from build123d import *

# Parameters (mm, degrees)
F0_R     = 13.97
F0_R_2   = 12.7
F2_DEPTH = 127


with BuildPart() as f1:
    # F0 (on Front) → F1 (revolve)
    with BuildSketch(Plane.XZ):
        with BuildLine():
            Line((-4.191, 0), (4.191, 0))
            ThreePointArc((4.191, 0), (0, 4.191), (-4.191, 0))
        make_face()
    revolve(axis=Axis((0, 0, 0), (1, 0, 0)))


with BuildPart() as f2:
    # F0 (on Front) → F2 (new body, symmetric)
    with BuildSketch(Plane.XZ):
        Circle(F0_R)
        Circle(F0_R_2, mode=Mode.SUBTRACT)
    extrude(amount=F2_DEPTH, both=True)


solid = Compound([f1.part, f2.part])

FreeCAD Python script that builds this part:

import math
import FreeCAD as App
import Part
import Sketcher

V = App.Vector
Q = App.Units.Quantity

doc = App.newDocument("Part")
body = doc.addObject("PartDesign::Body", "Body")

sketch1 = body.newObject("Sketcher::SketchObject", "Sketch")
sketch1.AttachmentSupport = (doc.getObject("XZ_Plane"), [""])
sketch1.MapMode = "FlatFace"
sketch1.addGeometry(Part.LineSegment(V(-4.2, 0, 0), V(4.2, 0, 0)), False)
sketch1.addGeometry(Part.ArcOfCircle(Part.Circle(V(0, 0, 0), V(0, 0, 1), 4.2), math.radians(0), math.radians(180)), False)
sketch1.addConstraint(Sketcher.Constraint("Coincident", 0, 1, 1, 2))
sketch1.addConstraint(Sketcher.Constraint("Coincident", 1, 1, 0, 2))
sketch1.addConstraint(Sketcher.Constraint("Horizontal", 0))
sketch1.addConstraint(Sketcher.Constraint("Coincident", 1, 3, -1, 1))
sketch1.addConstraint(Sketcher.Constraint("PointOnObject", 0, 1, -1))
sketch1.addConstraint(Sketcher.Constraint("Radius", 1, Q("0.165 in")))
revolution = body.newObject("PartDesign::Revolution", "Revolution")
revolution.Profile = sketch1
revolution.ReferenceAxis = (sketch1, ["H_Axis"])
revolution.Angle = 360
body2 = doc.addObject("PartDesign::Body", "Body001")

sketch2 = body2.newObject("Sketcher::SketchObject", "Sketch001")
sketch2.AttachmentSupport = (doc.getObject("XZ_Plane001"), [""])
sketch2.MapMode = "FlatFace"
sketch2.addGeometry(Part.Circle(V(0, 0, 0), V(0, 0, 1), 14), False)
sketch2.addGeometry(Part.Circle(V(0, 0, 0), V(0, 0, 1), 13), False)
sketch2.addConstraint(Sketcher.Constraint("Coincident", 0, 3, -1, 1))
sketch2.addConstraint(Sketcher.Constraint("Coincident", 1, 3, -1, 1))
sketch2.addConstraint(Sketcher.Constraint("Diameter", 1, Q("1 in")))
sketch2.addConstraint(Sketcher.Constraint("Diameter", 0, Q("1.1 in")))
pad1 = body2.newObject("PartDesign::Pad", "Pad")
pad1.Profile = sketch2
pad1.Length = Q("10 in")
pad1.Midplane = True

doc.recompute()
